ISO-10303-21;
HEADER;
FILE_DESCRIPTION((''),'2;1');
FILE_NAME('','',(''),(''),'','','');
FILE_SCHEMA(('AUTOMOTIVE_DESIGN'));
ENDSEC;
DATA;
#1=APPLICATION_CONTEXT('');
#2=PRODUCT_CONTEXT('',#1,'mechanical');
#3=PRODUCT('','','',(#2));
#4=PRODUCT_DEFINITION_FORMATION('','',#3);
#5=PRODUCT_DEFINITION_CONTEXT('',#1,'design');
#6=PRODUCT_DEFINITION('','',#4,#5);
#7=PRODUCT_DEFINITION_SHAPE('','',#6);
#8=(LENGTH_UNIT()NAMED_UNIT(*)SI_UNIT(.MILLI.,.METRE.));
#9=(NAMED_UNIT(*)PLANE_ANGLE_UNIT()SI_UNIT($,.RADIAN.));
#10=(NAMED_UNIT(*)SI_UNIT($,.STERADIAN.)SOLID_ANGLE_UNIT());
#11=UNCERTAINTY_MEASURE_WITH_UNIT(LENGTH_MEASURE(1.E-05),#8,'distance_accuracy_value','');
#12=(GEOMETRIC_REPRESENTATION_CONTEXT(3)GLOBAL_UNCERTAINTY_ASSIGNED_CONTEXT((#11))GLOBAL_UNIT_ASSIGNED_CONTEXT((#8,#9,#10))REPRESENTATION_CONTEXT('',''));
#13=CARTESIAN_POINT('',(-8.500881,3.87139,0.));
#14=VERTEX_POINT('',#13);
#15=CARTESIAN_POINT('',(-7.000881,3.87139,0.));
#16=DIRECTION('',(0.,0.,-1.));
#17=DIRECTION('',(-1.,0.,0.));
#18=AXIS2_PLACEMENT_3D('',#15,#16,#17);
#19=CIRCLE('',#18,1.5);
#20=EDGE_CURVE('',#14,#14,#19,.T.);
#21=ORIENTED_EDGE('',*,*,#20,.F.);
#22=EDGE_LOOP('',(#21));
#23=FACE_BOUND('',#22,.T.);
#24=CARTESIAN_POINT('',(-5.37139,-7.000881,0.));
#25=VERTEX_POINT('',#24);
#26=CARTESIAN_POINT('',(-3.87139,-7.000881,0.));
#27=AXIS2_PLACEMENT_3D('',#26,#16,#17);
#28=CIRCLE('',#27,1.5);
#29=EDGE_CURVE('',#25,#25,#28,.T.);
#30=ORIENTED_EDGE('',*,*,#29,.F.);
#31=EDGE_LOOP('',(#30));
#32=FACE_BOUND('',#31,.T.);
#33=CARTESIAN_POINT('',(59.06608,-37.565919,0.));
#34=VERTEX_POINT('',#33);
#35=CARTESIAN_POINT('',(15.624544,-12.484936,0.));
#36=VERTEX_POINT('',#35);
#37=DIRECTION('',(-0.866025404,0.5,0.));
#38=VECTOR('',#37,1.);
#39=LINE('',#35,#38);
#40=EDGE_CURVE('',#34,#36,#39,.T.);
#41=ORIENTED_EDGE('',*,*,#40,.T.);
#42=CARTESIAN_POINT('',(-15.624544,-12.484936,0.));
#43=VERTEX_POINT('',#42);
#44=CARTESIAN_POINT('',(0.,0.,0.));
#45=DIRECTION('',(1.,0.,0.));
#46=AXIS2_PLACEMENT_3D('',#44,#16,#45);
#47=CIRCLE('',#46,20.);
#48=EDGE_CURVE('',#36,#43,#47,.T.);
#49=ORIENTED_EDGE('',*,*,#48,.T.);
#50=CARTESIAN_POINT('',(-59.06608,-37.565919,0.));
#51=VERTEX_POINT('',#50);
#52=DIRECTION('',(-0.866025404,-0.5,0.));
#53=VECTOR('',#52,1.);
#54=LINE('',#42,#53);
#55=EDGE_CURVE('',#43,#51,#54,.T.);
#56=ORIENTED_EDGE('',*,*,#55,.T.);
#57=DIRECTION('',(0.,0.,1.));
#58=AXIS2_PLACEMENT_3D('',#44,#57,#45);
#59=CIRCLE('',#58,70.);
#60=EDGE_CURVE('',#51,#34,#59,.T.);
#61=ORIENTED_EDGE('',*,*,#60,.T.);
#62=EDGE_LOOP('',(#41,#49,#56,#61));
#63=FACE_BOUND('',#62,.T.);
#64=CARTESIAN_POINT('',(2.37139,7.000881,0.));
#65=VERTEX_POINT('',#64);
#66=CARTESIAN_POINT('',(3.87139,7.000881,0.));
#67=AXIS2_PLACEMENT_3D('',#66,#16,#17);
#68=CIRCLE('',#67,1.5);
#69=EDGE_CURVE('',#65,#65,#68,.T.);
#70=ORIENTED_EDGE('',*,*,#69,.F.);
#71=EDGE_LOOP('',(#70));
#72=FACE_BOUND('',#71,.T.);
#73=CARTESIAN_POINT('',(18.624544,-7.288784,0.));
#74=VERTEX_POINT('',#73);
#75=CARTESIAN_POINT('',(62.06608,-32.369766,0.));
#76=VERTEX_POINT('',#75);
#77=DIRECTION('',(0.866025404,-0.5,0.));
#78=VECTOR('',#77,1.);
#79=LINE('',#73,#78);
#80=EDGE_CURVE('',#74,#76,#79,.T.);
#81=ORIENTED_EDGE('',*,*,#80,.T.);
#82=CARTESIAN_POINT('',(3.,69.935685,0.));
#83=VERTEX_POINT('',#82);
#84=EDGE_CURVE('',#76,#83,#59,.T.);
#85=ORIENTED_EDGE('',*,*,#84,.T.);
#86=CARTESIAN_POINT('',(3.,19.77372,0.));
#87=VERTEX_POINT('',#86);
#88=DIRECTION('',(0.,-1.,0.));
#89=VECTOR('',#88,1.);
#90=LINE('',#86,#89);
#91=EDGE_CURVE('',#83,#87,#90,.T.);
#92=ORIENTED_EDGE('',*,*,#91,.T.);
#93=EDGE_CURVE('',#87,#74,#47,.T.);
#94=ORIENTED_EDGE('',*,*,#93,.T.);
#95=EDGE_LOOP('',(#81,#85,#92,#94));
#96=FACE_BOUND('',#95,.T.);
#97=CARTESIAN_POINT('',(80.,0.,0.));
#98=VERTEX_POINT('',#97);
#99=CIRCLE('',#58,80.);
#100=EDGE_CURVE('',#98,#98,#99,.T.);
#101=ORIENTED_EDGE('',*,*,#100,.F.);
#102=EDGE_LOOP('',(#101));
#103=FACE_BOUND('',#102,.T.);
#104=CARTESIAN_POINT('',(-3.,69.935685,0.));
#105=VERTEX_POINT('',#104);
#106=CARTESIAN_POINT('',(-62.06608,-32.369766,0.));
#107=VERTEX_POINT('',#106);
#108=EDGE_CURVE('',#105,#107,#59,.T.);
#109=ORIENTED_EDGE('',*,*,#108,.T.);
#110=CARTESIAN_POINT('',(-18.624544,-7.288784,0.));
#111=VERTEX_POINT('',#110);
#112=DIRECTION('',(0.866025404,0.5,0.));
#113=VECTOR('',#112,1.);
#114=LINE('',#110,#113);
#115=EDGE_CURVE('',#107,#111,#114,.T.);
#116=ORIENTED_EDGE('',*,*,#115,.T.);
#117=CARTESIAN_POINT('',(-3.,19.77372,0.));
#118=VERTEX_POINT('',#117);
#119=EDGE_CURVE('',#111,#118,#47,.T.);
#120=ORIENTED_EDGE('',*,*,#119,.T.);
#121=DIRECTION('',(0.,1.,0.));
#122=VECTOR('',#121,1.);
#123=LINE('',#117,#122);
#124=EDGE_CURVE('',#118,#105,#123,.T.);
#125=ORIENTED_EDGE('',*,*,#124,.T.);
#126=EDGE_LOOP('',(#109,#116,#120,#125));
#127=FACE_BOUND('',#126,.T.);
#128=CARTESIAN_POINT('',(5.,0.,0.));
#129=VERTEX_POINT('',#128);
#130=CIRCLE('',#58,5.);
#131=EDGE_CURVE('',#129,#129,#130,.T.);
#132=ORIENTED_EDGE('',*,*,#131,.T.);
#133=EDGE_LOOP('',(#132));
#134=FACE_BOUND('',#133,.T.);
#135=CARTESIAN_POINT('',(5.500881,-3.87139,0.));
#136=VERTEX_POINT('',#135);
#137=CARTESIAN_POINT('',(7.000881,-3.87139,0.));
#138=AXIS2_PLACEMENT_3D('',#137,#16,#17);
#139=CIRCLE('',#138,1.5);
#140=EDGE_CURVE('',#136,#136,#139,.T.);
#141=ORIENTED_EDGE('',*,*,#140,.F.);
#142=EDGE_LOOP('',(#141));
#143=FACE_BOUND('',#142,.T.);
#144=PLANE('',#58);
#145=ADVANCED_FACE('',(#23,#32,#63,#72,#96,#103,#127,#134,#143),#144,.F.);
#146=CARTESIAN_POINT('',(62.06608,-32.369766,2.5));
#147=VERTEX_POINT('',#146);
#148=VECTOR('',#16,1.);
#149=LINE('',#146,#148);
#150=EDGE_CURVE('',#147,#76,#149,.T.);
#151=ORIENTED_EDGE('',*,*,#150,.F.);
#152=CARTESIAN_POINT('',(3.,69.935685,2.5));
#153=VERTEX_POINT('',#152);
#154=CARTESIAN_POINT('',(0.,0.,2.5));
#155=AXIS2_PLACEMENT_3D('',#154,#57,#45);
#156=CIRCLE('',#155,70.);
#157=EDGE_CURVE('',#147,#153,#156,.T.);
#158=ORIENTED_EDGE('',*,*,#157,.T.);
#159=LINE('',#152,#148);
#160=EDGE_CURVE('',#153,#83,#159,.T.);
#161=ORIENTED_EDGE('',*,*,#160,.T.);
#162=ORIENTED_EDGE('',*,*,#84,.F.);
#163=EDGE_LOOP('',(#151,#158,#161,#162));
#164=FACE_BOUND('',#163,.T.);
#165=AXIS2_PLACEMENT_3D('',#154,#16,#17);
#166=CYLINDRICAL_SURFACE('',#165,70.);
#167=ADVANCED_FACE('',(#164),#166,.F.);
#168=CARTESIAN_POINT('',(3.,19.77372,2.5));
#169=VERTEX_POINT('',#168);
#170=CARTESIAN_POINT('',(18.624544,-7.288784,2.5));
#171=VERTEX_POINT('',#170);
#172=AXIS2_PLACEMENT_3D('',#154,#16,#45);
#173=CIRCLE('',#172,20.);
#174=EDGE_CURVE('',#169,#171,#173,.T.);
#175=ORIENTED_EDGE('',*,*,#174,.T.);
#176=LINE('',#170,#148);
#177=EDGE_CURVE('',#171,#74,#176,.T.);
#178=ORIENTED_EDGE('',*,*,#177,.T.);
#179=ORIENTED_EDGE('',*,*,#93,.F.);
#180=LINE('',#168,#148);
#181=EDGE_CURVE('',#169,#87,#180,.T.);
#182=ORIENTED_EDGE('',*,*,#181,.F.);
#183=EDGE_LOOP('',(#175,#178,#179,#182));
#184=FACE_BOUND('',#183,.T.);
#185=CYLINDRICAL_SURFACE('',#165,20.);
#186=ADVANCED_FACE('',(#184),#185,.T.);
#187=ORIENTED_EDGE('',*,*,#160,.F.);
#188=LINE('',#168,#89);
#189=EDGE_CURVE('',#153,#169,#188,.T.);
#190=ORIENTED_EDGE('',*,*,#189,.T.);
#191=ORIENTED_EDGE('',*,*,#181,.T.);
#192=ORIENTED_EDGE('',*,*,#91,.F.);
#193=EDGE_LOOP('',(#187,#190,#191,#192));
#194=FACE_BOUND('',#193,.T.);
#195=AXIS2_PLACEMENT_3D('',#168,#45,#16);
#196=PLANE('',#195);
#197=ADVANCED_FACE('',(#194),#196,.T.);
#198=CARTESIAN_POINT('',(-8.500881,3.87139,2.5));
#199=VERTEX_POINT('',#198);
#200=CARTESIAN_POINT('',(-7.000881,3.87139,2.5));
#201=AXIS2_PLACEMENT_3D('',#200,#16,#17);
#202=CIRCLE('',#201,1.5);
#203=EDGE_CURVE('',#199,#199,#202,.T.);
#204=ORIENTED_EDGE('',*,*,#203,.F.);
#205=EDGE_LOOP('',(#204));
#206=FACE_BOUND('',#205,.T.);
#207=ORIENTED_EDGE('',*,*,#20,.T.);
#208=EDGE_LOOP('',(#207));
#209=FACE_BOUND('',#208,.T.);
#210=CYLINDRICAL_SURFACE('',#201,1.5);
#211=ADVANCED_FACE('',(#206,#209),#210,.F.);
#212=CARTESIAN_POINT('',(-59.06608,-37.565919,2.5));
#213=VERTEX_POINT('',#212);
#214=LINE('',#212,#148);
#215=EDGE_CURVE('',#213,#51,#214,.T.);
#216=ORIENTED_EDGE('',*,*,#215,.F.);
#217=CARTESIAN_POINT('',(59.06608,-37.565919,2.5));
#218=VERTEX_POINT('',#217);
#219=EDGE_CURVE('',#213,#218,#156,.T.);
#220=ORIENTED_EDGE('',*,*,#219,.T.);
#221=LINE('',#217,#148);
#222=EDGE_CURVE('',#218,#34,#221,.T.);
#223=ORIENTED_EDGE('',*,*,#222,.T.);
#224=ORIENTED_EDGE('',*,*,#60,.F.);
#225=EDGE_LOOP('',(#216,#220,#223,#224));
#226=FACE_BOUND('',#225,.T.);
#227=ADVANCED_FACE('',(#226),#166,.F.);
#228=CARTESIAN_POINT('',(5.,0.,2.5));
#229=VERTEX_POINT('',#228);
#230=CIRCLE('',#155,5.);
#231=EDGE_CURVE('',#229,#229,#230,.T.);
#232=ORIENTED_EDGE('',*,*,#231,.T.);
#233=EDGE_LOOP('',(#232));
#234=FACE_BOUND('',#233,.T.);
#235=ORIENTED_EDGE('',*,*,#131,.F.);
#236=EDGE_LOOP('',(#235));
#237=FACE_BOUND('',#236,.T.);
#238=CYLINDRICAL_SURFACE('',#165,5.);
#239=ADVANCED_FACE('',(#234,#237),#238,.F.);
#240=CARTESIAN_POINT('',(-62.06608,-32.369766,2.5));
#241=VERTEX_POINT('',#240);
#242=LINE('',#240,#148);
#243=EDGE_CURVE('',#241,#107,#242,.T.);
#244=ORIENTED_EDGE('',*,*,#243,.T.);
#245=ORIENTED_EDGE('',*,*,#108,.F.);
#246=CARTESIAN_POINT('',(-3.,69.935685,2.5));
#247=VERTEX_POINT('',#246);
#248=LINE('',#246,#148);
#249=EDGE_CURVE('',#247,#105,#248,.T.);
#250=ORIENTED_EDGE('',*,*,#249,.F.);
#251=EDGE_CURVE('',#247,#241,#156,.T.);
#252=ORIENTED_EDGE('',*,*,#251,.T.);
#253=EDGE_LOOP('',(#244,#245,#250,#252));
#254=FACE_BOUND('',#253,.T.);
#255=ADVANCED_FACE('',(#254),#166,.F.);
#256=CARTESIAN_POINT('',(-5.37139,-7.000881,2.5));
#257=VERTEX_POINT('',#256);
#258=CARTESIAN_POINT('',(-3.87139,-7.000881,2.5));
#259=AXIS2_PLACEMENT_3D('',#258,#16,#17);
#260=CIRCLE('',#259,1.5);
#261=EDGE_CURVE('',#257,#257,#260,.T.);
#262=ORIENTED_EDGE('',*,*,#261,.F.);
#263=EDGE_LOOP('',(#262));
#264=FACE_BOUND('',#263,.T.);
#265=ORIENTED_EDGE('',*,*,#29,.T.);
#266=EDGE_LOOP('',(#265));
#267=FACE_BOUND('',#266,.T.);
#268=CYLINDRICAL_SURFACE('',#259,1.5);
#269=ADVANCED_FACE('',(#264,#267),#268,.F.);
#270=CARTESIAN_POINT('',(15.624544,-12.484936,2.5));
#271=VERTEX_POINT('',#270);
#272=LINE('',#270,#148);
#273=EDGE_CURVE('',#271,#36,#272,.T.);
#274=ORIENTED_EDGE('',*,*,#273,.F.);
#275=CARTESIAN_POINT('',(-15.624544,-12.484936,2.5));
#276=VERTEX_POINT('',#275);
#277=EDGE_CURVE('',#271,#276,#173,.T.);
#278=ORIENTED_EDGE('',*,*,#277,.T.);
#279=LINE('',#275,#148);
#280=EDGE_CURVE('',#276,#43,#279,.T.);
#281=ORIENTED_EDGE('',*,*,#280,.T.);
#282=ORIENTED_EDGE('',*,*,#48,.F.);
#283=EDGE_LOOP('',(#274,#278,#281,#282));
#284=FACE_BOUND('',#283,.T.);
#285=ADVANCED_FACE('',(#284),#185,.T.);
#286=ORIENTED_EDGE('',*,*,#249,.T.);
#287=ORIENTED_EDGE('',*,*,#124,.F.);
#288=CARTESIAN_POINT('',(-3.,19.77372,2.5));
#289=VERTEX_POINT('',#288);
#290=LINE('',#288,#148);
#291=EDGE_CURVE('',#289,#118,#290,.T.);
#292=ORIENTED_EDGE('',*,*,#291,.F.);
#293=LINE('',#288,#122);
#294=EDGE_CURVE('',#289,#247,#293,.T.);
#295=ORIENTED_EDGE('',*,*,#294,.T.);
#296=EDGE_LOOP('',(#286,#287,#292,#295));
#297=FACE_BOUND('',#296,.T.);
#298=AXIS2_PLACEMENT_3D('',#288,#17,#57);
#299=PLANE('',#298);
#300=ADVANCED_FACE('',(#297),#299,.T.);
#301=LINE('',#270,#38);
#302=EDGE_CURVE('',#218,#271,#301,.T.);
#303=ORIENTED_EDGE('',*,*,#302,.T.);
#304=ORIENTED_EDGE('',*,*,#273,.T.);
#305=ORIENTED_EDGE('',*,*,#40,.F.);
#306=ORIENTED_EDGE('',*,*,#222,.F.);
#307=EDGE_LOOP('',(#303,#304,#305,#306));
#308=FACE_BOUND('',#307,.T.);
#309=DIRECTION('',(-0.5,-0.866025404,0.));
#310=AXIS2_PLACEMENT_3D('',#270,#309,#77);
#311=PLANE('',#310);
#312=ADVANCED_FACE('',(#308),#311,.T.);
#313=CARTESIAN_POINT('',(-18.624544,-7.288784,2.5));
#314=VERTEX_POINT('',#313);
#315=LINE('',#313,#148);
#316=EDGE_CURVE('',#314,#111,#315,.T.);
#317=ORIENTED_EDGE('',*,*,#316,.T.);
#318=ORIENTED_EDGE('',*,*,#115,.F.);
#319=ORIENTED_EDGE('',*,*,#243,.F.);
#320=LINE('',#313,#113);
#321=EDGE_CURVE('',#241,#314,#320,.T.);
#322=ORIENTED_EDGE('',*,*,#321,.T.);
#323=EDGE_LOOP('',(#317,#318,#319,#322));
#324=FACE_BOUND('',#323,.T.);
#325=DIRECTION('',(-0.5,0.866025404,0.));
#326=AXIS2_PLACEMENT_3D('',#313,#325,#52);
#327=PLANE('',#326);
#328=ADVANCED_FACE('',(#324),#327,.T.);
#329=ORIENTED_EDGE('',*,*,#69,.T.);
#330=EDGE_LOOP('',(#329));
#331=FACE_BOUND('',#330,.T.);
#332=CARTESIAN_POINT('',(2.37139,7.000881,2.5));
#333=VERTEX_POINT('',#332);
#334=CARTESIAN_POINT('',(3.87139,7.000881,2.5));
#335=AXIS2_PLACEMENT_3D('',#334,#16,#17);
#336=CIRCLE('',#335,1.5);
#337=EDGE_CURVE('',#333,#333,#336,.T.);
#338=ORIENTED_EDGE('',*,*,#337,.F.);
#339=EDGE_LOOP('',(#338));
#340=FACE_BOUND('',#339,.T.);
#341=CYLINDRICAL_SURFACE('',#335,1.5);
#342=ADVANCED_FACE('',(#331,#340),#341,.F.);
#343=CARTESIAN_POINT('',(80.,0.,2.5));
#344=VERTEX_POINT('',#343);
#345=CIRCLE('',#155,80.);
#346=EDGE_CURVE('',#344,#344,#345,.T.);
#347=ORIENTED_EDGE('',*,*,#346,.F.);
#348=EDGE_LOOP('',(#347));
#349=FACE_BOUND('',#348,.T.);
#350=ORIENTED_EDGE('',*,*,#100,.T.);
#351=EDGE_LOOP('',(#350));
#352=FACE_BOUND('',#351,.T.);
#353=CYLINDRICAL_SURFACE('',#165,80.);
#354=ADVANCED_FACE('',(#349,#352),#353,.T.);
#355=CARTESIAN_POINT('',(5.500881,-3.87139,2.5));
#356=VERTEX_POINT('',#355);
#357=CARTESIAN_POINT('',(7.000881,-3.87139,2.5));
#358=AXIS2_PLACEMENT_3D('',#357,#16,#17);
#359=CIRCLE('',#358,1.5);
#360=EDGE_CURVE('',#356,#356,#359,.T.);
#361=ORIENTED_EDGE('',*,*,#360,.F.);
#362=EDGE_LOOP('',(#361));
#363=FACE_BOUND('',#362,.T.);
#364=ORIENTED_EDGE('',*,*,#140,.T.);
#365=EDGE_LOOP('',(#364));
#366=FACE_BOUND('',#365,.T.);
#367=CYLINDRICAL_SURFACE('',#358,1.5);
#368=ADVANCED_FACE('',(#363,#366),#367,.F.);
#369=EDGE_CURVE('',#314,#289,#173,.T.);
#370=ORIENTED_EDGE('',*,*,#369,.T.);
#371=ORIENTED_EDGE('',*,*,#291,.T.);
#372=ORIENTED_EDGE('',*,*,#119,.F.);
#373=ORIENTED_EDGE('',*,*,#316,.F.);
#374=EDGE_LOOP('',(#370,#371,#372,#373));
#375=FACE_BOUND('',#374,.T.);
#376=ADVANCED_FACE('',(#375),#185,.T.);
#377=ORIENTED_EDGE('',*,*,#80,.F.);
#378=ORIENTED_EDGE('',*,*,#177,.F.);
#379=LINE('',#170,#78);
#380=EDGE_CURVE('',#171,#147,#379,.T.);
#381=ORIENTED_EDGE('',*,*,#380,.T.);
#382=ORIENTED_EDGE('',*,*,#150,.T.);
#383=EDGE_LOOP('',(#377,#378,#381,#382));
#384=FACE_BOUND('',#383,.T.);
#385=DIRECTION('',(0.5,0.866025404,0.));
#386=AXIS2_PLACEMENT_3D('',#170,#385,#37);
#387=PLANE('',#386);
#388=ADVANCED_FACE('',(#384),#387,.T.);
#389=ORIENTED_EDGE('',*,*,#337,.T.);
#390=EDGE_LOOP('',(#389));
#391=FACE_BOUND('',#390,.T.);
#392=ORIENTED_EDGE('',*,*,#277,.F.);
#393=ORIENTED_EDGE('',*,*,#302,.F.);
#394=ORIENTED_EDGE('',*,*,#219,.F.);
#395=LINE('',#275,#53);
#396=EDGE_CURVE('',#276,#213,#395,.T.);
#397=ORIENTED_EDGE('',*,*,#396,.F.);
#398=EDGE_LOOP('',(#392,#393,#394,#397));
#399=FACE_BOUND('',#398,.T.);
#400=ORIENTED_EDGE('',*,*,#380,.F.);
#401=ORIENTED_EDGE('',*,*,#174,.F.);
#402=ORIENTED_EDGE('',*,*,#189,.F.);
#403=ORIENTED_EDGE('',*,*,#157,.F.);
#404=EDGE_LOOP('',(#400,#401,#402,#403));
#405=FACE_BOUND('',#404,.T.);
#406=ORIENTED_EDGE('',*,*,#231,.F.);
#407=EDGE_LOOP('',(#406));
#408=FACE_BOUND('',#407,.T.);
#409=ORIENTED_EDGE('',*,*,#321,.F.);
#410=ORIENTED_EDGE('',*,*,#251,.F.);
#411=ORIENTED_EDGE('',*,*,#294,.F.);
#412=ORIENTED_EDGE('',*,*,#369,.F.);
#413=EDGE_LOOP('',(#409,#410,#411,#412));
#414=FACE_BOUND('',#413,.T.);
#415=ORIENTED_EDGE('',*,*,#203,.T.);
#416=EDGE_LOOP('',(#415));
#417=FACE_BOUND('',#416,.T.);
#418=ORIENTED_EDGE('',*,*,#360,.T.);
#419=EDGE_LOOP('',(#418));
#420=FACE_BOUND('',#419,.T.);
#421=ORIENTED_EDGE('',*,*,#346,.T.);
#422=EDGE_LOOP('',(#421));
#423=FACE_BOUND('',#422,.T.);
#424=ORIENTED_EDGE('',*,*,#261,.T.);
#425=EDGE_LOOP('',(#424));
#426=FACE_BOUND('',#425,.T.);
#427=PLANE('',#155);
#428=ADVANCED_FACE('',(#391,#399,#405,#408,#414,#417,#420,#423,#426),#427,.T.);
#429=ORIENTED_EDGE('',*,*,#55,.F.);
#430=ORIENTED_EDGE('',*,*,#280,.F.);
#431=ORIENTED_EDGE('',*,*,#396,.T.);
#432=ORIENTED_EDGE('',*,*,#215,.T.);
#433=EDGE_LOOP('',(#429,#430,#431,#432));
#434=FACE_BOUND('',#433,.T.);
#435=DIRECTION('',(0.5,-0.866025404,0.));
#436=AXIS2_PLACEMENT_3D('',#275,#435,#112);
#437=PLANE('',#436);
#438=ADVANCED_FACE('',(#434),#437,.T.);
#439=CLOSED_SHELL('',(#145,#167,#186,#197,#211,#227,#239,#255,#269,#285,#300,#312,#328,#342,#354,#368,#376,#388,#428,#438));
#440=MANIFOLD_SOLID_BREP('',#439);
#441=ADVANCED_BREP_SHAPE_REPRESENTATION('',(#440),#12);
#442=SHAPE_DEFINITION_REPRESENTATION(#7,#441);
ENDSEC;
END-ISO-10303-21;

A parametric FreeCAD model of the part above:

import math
import FreeCAD as App
import Part
import Sketcher
from FreeCAD import Vector
Q = App.Units.Quantity

doc = App.newDocument("Part")
body = doc.addObject("PartDesign::Body", "Body")

# Sketch on XY plane
sketch1 = doc.addObject("Sketcher::SketchObject", "Sketch")
body.addObject(sketch1)
sketch1.AttachmentSupport = (doc.XY_Plane, [""])
sketch1.MapMode = "FlatFace"
sketch1.addGeometry(Part.Circle(Vector(0, 0, 0), Vector(0, 0, 1), 80), False)
sketch1.addGeometry(Part.ArcOfCircle(Part.Circle(Vector(0, 0, 0), Vector(0, 0, 1), 20), math.radians(-141), math.radians(-39)), False)
sketch1.addGeometry(Part.LineSegment(Vector(16, -12, 0), Vector(59, -38, 0)), False)
sketch1.addGeometry(Part.ArcOfCircle(Part.Circle(Vector(0, 0, 0), Vector(0, 0, 1), 70), math.radians(-148), math.radians(-32)), False)
sketch1.addGeometry(Part.LineSegment(Vector(-59, -38, 0), Vector(-16, -12, 0)), False)
sketch1.addGeometry(Part.LineSegment(Vector(-3, 70, 0), Vector(-3, 20, 0)), False)
sketch1.addGeometry(Part.ArcOfCircle(Part.Circle(Vector(0, 0, 0), Vector(0, 0, 1), 20), math.radians(99), math.radians(201)), False)
sketch1.addGeometry(Part.LineSegment(Vector(-19, -7, 0), Vector(-62, -32, 0)), False)
sketch1.addGeometry(Part.ArcOfCircle(Part.Circle(Vector(0, 0, 0), Vector(0, 0, 1), 70), math.radians(92), math.radians(208)), False)
sketch1.addGeometry(Part.Circle(Vector(0, 0, 0), Vector(0, 0, 1), 5), False)
sketch1.addGeometry(Part.ArcOfCircle(Part.Circle(Vector(0, 0, 0), Vector(0, 0, 1), 20), math.radians(-21), math.radians(81)), False)
sketch1.addGeometry(Part.LineSegment(Vector(3, 20, 0), Vector(3, 70, 0)), False)
sketch1.addGeometry(Part.ArcOfCircle(Part.Circle(Vector(0, 0, 0), Vector(0, 0, 1), 70), math.radians(-28), math.radians(88)), False)
sketch1.addGeometry(Part.LineSegment(Vector(62, -32, 0), Vector(19, -7, 0)), False)
sketch1.addConstraint(Sketcher.Constraint("Coincident", 1, 2, 2, 1))
sketch1.addConstraint(Sketcher.Constraint("Coincident", 2, 2, 3, 2))
sketch1.addConstraint(Sketcher.Constraint("Coincident", 3, 1, 4, 1))
sketch1.addConstraint(Sketcher.Constraint("Coincident", 4, 2, 1, 1))
sketch1.addConstraint(Sketcher.Constraint("Coincident", 5, 2, 6, 1))
sketch1.addConstraint(Sketcher.Constraint("Coincident", 6, 2, 7, 1))
sketch1.addConstraint(Sketcher.Constraint("Coincident", 7, 2, 8, 2))
sketch1.addConstraint(Sketcher.Constraint("Coincident", 8, 1, 5, 1))
sketch1.addConstraint(Sketcher.Constraint("Coincident", 10, 2, 11, 1))
sketch1.addConstraint(Sketcher.Constraint("Coincident", 11, 2, 12, 2))
sketch1.addConstraint(Sketcher.Constraint("Coincident", 12, 1, 13, 1))
sketch1.addConstraint(Sketcher.Constraint("Coincident", 13, 2, 10, 1))
sketch1.addConstraint(Sketcher.Constraint("Vertical", 5))
sketch1.addConstraint(Sketcher.Constraint("Vertical", 11))
sketch1.addConstraint(Sketcher.Constraint("Coincident", 0, 3, -1, 1))
sketch1.addConstraint(Sketcher.Constraint("Coincident", 1, 3, -1, 1))
sketch1.addConstraint(Sketcher.Constraint("Coincident", 3, 3, -1, 1))
sketch1.addConstraint(Sketcher.Constraint("Coincident", 6, 3, -1, 1))
sketch1.addConstraint(Sketcher.Constraint("Coincident", 8, 3, -1, 1))
sketch1.addConstraint(Sketcher.Constraint("Coincident", 9, 3, -1, 1))
sketch1.addConstraint(Sketcher.Constraint("Coincident", 10, 3, -1, 1))
sketch1.addConstraint(Sketcher.Constraint("Coincident", 12, 3, -1, 1))
sketch1.addConstraint(Sketcher.Constraint("Equal", 1, 6))
sketch1.addConstraint(Sketcher.Constraint("Equal", 3, 8))
sketch1.addConstraint(Sketcher.Constraint("Equal", 6, 10))
sketch1.addConstraint(Sketcher.Constraint("Equal", 8, 12))
sketch1.addConstraint(Sketcher.Constraint("Parallel", 4, 7))
sketch1.addConstraint(Sketcher.Constraint("Parallel", 2, 13))
sketch1.addConstraint(Sketcher.Constraint("Horizontal", 2, 2, 3, 1))
sketch1.addConstraint(Sketcher.Constraint("Horizontal", 1, 2, 4, 2))
sketch1.addConstraint(Sketcher.Constraint("Horizontal", 5, 2, 10, 2))
sketch1.addConstraint(Sketcher.Constraint("Horizontal", 7, 2, 12, 1))
sketch1.addConstraint(Sketcher.Constraint("Equal", 4, 7))
sketch1.addConstraint(Sketcher.Constraint("Diameter", 0, 160.0))
sketch1.addConstraint(Sketcher.Constraint("Diameter", 9, 10.0))
sketch1.addConstraint(Sketcher.Constraint("Radius", 1, 20.0))
sketch1.addConstraint(Sketcher.Constraint("Radius", 3, 70.0))
sketch1.addConstraint(Sketcher.Constraint("Angle", 2, Q("-30 deg")))
sketch1.addConstraint(Sketcher.Constraint("DistanceX", 5, 2, -1, 1, 3.0))
sketch1.addConstraint(Sketcher.Constraint("DistanceX", 6, 2, 4, 2, 3.0))
pad1 = doc.addObject("PartDesign::Pad", "Pad")
body.addObject(pad1)
pad1.Profile = sketch1
pad1.Length = 2.5

# Sketch on XY plane
sketch2 = doc.addObject("Sketcher::SketchObject", "Sketch001")
body.addObject(sketch2)
sketch2.AttachmentSupport = (doc.XY_Plane, [""])
sketch2.MapMode = "FlatFace"
sketch2.addGeometry(Part.Circle(Vector(7, -3.9, 0), Vector(0, 0, 1), 1.5), False)
sketch2.addGeometry(Part.Circle(Vector(3.9, 7, 0), Vector(0, 0, 1), 1.5), False)
sketch2.addGeometry(Part.Circle(Vector(-7, 3.9, 0), Vector(0, 0, 1), 1.5), False)
sketch2.addGeometry(Part.Circle(Vector(-3.9, -7, 0), Vector(0, 0, 1), 1.5), False)
sketch2.addConstraint(Sketcher.Constraint("Equal", 0, 1))
sketch2.addConstraint(Sketcher.Constraint("Equal", 1, 2))
sketch2.addConstraint(Sketcher.Constraint("Equal", 2, 3))
sketch2.addConstraint(Sketcher.Constraint("Symmetric", 0, 3, 2, 3, -1, 1))
sketch2.addConstraint(Sketcher.Constraint("Symmetric", 1, 3, 3, 3, -1, 1))
sketch2.addConstraint(Sketcher.Constraint("Diameter", 0, 3.0))
sketch2.addConstraint(Sketcher.Constraint("DistanceX", -1, 1, 0, 3, 7.000881))
sketch2.addConstraint(Sketcher.Constraint("DistanceY", 0, 3, -1, 1, 3.87139))
sketch2.addConstraint(Sketcher.Constraint("DistanceX", -1, 1, 1, 3, 3.87139))
sketch2.addConstraint(Sketcher.Constraint("DistanceY", -1, 1, 1, 3, 7.000881))
pocket1 = doc.addObject("PartDesign::Pocket", "Pocket")
body.addObject(pocket1)
pocket1.Profile = sketch2
pocket1.Type = "ThroughAll"
pocket1.Reversed = True

doc.recompute()
